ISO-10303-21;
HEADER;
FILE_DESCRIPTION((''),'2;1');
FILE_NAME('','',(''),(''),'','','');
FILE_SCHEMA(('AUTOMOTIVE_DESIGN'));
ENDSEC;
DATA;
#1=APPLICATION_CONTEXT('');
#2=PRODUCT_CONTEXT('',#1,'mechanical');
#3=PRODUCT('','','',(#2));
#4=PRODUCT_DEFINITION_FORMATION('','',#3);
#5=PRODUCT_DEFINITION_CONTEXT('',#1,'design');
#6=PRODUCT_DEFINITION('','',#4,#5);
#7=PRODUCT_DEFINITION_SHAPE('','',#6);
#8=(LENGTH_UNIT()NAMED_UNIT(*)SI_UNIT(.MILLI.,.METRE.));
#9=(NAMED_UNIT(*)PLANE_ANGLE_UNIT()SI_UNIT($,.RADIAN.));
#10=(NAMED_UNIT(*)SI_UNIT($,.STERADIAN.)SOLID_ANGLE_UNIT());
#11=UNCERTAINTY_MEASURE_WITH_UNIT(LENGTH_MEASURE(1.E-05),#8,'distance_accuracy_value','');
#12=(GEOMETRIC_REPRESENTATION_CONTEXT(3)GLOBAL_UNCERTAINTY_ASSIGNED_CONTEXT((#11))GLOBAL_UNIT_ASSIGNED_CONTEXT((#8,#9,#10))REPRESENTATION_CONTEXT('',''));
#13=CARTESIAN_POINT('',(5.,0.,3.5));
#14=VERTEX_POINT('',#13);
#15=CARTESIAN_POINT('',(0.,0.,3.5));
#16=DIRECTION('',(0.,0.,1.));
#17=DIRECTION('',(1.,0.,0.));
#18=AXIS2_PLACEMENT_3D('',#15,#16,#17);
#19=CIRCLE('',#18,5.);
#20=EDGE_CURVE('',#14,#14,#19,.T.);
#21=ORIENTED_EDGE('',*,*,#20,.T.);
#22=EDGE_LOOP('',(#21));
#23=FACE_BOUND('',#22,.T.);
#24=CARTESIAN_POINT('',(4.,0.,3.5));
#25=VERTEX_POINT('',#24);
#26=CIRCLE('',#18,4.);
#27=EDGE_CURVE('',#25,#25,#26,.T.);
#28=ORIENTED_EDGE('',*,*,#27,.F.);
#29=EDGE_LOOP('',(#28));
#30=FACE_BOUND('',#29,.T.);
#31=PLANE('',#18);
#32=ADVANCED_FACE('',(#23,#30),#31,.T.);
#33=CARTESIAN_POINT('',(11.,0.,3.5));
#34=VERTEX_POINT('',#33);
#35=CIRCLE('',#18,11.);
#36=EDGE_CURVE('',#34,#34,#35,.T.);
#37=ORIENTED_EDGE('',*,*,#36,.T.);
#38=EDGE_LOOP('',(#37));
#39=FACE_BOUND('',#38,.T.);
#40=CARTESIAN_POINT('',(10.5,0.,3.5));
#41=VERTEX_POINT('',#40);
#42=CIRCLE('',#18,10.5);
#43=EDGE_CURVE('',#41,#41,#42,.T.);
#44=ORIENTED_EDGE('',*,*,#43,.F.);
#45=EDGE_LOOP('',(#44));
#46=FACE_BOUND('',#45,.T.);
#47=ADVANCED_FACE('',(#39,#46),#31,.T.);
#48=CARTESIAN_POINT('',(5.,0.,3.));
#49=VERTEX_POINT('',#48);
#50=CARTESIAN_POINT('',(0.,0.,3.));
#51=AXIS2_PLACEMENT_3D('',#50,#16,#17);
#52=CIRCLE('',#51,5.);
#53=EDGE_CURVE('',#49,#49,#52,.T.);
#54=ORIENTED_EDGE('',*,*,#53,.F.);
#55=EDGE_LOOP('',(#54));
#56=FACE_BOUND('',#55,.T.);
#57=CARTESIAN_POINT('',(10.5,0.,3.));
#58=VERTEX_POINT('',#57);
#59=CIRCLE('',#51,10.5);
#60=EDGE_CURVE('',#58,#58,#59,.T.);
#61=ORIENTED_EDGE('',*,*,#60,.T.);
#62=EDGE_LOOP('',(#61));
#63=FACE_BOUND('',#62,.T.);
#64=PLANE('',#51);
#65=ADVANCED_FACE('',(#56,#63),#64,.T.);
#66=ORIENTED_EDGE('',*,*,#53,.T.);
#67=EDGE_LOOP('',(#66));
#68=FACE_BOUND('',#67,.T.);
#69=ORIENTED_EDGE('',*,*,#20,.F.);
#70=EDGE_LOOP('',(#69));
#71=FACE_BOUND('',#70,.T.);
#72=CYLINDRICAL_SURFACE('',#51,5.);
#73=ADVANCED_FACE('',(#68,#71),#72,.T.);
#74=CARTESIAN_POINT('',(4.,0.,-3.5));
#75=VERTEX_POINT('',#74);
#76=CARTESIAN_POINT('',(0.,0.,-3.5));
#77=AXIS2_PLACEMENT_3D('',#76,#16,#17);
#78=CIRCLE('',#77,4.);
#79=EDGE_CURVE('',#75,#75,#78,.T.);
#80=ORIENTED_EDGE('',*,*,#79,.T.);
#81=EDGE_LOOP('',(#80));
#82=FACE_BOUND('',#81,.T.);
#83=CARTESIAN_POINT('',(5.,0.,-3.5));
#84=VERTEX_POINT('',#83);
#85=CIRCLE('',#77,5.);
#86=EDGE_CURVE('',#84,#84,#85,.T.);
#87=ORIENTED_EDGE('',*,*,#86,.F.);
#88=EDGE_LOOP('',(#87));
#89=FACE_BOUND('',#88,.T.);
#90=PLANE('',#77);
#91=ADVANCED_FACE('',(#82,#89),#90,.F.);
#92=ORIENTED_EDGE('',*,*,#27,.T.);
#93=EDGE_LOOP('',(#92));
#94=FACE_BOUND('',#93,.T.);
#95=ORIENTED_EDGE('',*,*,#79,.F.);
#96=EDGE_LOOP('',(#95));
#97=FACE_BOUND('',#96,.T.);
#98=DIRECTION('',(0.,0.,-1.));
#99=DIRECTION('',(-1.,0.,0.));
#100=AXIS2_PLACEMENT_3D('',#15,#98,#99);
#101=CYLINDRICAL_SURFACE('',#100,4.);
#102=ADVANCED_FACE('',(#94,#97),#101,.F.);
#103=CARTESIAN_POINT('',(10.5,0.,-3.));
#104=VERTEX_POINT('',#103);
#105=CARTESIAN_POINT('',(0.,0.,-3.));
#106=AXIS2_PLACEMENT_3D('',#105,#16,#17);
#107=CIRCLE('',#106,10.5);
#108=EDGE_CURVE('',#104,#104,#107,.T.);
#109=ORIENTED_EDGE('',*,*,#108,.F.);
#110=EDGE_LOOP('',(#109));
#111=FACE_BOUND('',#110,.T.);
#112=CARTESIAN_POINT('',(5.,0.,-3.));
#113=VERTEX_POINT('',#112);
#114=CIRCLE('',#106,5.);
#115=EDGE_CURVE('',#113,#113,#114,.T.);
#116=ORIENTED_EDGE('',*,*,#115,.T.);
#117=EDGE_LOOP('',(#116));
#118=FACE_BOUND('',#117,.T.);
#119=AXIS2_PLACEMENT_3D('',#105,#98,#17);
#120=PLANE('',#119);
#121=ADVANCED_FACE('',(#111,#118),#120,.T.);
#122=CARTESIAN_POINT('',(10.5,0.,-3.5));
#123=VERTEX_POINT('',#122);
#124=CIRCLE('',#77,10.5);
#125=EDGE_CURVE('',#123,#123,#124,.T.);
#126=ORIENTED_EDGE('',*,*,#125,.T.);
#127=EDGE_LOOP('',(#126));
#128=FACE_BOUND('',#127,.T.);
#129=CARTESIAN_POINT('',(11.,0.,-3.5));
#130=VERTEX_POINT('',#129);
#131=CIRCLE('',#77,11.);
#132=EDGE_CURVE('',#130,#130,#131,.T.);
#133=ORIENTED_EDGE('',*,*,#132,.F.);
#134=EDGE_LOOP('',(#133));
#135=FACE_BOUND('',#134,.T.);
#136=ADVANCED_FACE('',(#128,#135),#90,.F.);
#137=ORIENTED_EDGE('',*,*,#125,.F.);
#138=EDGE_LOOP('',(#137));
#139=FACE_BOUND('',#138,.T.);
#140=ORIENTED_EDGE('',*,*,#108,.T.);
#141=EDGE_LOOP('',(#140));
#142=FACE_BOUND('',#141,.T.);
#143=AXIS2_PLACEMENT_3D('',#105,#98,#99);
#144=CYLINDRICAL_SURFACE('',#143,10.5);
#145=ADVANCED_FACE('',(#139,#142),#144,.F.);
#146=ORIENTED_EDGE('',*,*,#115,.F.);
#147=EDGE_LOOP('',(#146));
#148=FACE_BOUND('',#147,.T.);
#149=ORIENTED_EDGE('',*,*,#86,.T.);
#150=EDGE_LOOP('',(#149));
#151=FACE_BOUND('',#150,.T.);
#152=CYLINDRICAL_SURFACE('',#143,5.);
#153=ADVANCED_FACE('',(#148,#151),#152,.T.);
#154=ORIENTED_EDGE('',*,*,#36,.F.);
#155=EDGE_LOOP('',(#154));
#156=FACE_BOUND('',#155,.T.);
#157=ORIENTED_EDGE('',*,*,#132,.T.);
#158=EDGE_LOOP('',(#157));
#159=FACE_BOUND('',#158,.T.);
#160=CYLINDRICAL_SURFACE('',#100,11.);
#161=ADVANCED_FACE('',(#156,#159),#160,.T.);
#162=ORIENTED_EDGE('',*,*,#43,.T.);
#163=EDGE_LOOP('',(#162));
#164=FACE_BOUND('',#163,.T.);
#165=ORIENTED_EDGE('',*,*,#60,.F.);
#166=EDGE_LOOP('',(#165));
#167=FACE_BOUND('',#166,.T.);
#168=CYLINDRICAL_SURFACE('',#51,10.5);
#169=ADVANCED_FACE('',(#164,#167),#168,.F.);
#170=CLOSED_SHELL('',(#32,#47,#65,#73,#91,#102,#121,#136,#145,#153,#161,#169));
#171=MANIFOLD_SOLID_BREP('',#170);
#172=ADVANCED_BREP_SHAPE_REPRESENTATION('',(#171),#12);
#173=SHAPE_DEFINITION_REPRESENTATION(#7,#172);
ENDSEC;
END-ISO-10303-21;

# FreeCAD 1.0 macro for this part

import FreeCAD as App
import Part
import Sketcher
Q = App.Units.Quantity

doc = App.newDocument("Part")
params = doc.addObject("Spreadsheet::Sheet", "Params")
for row, (alias, value) in enumerate([
    ("sketch1_diameter", "22 mm"),
    ("sketch1_diameter2", "8 mm"),
    ("pad1_length", "7 mm"),
    ("sketch2_diameter", "21 mm"),
    ("sketch2_diameter2", "10 mm"),
    ("pocket1_length", "0.5 mm"),
], start=1):
    params.set(f"A{row}", alias)
    params.set(f"B{row}", "=" + value)
    params.setAlias(f"B{row}", alias)

body = doc.addObject("PartDesign::Body", "Body")

sketch1 = body.newObject("Sketcher::SketchObject", "Sketch")
sketch1.AttachmentSupport = (doc.getObject("XY_Plane"), [""])
sketch1.MapMode = "FlatFace"
sketch1.addGeometry(Part.Circle(App.Vector(0, 0, 0), App.Vector(0, 0, 1), 11), False)
sketch1.addGeometry(Part.Circle(App.Vector(0, 0, 0), App.Vector(0, 0, 1), 4), False)
sketch1.addConstraint(Sketcher.Constraint("Coincident", 0, 3, -1, 1))
sketch1.addConstraint(Sketcher.Constraint("Coincident", 1, 3, -1, 1))
sketch1.addConstraint(Sketcher.Constraint("Diameter", 0, Q("22 mm")))
sketch1.addConstraint(Sketcher.Constraint("Diameter", 1, Q("8 mm")))
sketch1.setExpression("Constraints[2]", "Params.sketch1_diameter")
sketch1.setExpression("Constraints[3]", "Params.sketch1_diameter2")
pad1 = body.newObject("PartDesign::Pad", "Pad")
pad1.Profile = sketch1
pad1.setExpression("Length", "Params.pad1_length")
pad1.Midplane = True

sketch2 = body.newObject("Sketcher::SketchObject", "Sketch001")
sketch2.AttachmentSupport = (doc.getObject("XY_Plane"), [""])
sketch2.MapMode = "FlatFace"
sketch2.AttachmentOffset = App.Placement(App.Vector(0, 0, 3.5), App.Rotation())
sketch2.addGeometry(Part.Circle(App.Vector(0, 0, 0), App.Vector(0, 0, 1), 10.5), False)
sketch2.addGeometry(Part.Circle(App.Vector(0, 0, 0), App.Vector(0, 0, 1), 5), False)
sketch2.addConstraint(Sketcher.Constraint("Coincident", 0, 3, -1, 1))
sketch2.addConstraint(Sketcher.Constraint("Coincident", 1, 3, -1, 1))
sketch2.addConstraint(Sketcher.Constraint("Diameter", 0, Q("21 mm")))
sketch2.addConstraint(Sketcher.Constraint("Diameter", 1, Q("10 mm")))
sketch2.setExpression("Constraints[2]", "Params.sketch2_diameter")
sketch2.setExpression("Constraints[3]", "Params.sketch2_diameter2")
pocket1 = body.newObject("PartDesign::Pocket", "Pocket")
pocket1.Profile = sketch2
pocket1.setExpression("Length", "Params.pocket1_length")
doc.recompute()

mirrored = body.newObject("PartDesign::Mirrored", "Mirrored")
mirrored.Originals = [pocket1]
mirrored.MirrorPlane = (doc.getObject("XY_Plane"), [""])
body.Tip = mirrored

doc.recompute()
